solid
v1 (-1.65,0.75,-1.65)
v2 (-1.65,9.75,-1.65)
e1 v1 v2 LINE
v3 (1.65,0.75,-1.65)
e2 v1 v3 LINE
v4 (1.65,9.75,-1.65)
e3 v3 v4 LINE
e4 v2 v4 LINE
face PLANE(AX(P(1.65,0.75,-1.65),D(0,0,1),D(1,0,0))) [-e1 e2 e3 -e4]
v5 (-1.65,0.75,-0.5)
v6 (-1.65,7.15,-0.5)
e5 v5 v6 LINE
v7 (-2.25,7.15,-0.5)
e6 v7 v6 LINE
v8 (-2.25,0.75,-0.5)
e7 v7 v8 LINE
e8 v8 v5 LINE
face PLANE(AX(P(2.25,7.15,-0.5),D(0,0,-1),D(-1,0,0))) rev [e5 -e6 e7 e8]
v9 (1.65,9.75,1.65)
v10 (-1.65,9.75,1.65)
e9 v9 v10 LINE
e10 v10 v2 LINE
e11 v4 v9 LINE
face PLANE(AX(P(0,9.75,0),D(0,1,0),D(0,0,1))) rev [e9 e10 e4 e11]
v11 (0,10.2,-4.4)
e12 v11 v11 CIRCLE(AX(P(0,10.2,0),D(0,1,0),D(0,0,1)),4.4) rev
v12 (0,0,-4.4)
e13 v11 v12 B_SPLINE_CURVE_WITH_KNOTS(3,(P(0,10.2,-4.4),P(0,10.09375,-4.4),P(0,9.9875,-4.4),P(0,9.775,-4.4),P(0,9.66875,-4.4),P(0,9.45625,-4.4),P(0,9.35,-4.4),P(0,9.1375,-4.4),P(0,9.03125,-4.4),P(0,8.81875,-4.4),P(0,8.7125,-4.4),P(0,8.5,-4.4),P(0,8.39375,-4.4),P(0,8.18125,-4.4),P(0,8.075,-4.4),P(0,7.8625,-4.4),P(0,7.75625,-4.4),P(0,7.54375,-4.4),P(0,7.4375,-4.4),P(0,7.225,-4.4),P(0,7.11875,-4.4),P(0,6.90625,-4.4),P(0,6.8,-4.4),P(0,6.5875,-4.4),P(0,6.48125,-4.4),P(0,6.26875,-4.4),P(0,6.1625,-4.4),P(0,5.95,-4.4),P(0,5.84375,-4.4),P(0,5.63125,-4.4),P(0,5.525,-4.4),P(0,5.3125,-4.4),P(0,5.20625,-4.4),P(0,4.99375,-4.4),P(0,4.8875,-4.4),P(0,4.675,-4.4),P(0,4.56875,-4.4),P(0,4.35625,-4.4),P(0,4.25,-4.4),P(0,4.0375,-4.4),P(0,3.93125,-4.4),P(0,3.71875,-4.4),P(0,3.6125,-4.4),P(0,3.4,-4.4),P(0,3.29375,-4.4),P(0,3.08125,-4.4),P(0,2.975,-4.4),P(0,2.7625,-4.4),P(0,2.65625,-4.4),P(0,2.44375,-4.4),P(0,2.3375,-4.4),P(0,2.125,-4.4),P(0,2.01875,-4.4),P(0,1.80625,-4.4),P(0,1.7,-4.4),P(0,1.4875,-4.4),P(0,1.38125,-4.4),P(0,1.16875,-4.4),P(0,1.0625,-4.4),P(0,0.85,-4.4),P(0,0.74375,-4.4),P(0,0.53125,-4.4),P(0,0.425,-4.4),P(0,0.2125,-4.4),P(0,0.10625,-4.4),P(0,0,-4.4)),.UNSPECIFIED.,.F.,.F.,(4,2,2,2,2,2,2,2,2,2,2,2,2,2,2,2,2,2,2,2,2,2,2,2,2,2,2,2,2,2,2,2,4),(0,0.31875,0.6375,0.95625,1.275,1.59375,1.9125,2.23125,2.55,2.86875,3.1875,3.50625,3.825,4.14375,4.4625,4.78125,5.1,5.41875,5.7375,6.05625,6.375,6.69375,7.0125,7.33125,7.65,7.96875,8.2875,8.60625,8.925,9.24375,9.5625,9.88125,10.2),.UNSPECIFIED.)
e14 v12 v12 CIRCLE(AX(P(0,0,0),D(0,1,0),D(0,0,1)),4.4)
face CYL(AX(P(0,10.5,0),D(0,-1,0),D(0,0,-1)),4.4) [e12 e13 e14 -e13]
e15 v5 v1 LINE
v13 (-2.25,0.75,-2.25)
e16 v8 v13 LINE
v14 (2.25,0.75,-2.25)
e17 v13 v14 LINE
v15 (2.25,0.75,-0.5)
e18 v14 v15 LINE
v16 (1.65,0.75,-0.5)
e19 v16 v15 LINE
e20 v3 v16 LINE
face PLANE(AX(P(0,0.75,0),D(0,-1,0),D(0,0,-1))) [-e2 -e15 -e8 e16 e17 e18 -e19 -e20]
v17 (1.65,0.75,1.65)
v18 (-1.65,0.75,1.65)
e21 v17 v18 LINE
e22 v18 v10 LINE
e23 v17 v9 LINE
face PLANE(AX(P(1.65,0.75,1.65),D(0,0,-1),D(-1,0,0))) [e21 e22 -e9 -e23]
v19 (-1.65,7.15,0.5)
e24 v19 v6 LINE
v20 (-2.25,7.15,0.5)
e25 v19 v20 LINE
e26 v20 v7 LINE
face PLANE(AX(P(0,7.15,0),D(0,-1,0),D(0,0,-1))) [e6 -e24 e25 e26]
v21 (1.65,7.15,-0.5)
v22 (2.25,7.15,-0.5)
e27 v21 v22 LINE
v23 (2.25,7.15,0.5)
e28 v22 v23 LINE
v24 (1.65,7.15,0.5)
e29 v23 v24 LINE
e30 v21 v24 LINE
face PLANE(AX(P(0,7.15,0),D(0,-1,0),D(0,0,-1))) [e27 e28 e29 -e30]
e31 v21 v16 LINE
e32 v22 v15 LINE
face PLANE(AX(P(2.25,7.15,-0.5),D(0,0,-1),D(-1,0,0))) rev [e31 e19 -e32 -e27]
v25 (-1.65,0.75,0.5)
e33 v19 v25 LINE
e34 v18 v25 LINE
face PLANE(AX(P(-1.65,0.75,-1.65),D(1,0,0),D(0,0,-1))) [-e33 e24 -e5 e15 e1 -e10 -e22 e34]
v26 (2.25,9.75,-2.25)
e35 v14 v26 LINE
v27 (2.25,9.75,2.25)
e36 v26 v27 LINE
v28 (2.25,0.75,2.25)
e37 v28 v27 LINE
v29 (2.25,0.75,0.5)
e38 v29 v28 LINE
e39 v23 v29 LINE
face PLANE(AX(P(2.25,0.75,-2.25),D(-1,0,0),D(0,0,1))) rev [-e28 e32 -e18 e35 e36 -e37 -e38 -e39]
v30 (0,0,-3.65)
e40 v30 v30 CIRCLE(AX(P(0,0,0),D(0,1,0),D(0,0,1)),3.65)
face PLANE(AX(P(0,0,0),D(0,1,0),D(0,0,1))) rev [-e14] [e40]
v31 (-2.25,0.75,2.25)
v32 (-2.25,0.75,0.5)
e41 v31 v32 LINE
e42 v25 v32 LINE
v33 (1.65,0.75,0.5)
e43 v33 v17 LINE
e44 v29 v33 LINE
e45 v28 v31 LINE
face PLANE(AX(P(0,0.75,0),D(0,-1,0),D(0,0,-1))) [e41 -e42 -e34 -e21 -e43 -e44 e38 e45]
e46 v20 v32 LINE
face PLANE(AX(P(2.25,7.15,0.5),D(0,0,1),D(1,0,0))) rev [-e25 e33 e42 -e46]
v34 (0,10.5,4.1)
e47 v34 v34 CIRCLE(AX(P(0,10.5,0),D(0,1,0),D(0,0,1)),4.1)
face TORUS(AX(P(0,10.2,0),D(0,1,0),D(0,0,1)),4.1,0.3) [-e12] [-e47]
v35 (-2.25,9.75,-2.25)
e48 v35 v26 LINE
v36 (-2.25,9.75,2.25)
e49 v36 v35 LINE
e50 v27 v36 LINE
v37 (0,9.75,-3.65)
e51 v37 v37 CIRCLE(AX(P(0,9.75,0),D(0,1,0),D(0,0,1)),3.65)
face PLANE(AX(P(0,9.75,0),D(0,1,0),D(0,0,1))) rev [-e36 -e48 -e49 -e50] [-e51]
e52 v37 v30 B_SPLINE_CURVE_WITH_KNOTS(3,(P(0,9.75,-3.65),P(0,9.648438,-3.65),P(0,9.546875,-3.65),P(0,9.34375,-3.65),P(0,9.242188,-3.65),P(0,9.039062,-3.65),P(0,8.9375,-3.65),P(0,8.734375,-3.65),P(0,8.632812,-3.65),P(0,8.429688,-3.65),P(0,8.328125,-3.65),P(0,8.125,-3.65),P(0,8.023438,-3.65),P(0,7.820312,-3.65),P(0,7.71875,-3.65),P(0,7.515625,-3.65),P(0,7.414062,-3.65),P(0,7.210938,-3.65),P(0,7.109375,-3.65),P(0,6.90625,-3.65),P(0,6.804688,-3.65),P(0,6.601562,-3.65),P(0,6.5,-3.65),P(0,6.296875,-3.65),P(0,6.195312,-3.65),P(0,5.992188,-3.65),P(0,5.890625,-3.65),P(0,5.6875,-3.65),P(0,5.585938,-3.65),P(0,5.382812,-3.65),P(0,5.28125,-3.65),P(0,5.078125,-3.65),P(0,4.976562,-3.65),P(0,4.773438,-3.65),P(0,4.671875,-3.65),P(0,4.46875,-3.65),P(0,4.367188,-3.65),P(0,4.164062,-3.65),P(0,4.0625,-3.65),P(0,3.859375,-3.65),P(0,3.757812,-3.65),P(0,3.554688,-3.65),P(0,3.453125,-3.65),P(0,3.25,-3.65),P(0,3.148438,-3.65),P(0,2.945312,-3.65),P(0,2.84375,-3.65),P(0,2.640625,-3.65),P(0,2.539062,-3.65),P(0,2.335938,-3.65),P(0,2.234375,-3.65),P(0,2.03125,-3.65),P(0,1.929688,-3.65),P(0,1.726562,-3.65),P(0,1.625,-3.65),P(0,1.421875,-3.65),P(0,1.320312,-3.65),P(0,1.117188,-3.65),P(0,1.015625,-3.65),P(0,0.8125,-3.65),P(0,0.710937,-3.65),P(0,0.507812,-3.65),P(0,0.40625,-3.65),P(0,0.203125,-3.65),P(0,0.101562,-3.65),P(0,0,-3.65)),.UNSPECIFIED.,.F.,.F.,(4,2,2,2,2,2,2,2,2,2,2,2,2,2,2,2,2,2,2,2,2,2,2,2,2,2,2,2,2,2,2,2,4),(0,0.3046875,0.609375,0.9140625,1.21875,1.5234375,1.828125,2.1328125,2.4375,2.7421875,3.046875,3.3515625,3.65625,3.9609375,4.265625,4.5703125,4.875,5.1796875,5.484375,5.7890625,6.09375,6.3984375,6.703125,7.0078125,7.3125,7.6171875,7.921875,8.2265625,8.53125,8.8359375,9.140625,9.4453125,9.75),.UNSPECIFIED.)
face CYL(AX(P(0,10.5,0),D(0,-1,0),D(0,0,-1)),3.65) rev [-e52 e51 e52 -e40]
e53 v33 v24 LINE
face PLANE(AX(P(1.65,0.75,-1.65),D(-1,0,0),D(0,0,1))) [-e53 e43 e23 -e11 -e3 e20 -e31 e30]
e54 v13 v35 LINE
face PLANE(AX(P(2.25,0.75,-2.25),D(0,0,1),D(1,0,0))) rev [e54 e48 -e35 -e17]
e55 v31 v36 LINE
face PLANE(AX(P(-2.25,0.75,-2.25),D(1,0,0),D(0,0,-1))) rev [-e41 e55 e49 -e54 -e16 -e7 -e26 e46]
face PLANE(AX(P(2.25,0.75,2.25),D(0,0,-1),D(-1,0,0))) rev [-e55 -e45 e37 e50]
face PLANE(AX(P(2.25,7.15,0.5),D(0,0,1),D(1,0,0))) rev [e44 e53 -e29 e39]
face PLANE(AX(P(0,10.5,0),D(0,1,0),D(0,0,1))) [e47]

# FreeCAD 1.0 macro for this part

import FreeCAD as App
import Part
import Sketcher
from FreeCAD import Vector


def edges_at(feature, points):
    """Names of the edges that pass closest to the given points."""
    edges = feature.Shape.Edges
    near = lambda p: min(range(len(edges)), key=lambda i: edges[i].distToShape(Part.Vertex(*p))[0])
    return sorted({f"Edge{near(p) + 1}" for p in points})


def faces_at(feature, points):
    """Names of the faces that lie closest to the given points."""
    faces = feature.Shape.Faces
    near = lambda p: min(range(len(faces)), key=lambda i: faces[i].distToShape(Part.Vertex(*p))[0])
    return sorted({f"Face{near(p) + 1}" for p in points})

doc = App.newDocument("Part")
body = doc.addObject("PartDesign::Body", "Body")

sketch1 = body.newObject("Sketcher::SketchObject", "Sketch")
sketch1.AttachmentSupport = (doc.getObject("XZ_Plane"), [""])
sketch1.MapMode = "FlatFace"
sketch1.addGeometry(Part.Circle(Vector(0, 0, 0), Vector(0, 0, 1), 4.4), False)
sketch1.addConstraint([
    Sketcher.Constraint("Coincident", 0, 3, -1, 1),
    Sketcher.Constraint("Diameter", 0, 8.8),
])
pad1 = body.newObject("PartDesign::Pad", "Pad")
pad1.Profile = sketch1
pad1.Length = 10.5
pad1.Reversed = True
doc.recompute()

thickness = body.newObject("PartDesign::Thickness", "Thickness")
thickness.Base = (pad1, faces_at(pad1, [(0, 0, 0)]))
thickness.Value = 0.75
thickness.Reversed = True
thickness.Join = "Intersection"

sketch2 = body.newObject("Sketcher::SketchObject", "Sketch001")
sketch2.AttachmentSupport = (doc.getObject("XZ_Plane"), [""])
sketch2.MapMode = "FlatFace"
sketch2.AttachmentOffset = App.Placement(Vector(0, 0, -9.75), App.Rotation())
sketch2.addGeometry([
    Part.LineSegment(Vector(-2.2, 2.2, 0), Vector(-2.2, -2.2, 0)),
    Part.LineSegment(Vector(-2.2, -2.2, 0), Vector(2.2, -2.2, 0)),
    Part.LineSegment(Vector(2.2, -2.2, 0), Vector(2.2, 2.2, 0)),
    Part.LineSegment(Vector(2.2, 2.2, 0), Vector(-2.2, 2.2, 0)),
    Part.LineSegment(Vector(1.6, -1.6, 0), Vector(-1.6, -1.6, 0)),
    Part.LineSegment(Vector(-1.6, -1.6, 0), Vector(-1.6, 1.6, 0)),
    Part.LineSegment(Vector(-1.6, 1.6, 0), Vector(1.6, 1.6, 0)),
    Part.LineSegment(Vector(1.6, 1.6, 0), Vector(1.6, -1.6, 0)),
], False)
sketch2.addConstraint([
    Sketcher.Constraint("Coincident", 0, 2, 1, 1),
    Sketcher.Constraint("Coincident", 1, 2, 2, 1),
    Sketcher.Constraint("Coincident", 2, 2, 3, 1),
    Sketcher.Constraint("Coincident", 3, 2, 0, 1),
    Sketcher.Constraint("Coincident", 4, 2, 5, 1),
    Sketcher.Constraint("Coincident", 5, 2, 6, 1),
    Sketcher.Constraint("Coincident", 6, 2, 7, 1),
    Sketcher.Constraint("Coincident", 7, 2, 4, 1),
    Sketcher.Constraint("Vertical", 0),
    Sketcher.Constraint("Horizontal", 1),
    Sketcher.Constraint("Vertical", 2),
    Sketcher.Constraint("Horizontal", 3),
    Sketcher.Constraint("Horizontal", 4),
    Sketcher.Constraint("Vertical", 5),
    Sketcher.Constraint("Horizontal", 6),
    Sketcher.Constraint("Vertical", 7),
    Sketcher.Constraint("Symmetric", 0, 2, 2, 2, -1, 1),
    Sketcher.Constraint("Symmetric", 4, 2, 6, 2, -1, 1),
    Sketcher.Constraint("Equal", 3, 0),
    Sketcher.Constraint("Equal", 6, 5),
    Sketcher.Constraint("DistanceX", 1, 1, 1, 2, 4.5),
    Sketcher.Constraint("DistanceX", 4, 2, 4, 1, 3.3),
])
pad2 = body.newObject("PartDesign::Pad", "Pad001")
pad2.Profile = sketch2
pad2.Length = 9

sketch3 = body.newObject("Sketcher::SketchObject", "Sketch002")
sketch3.AttachmentSupport = (doc.getObject("XZ_Plane"), [""])
sketch3.MapMode = "FlatFace"
sketch3.AttachmentOffset = App.Placement(Vector(0, 0, -0.75), App.Rotation())
sketch3.addGeometry([
    Part.LineSegment(Vector(2.2, -0.5, 0), Vector(2.2, 0.5, 0)),
    Part.LineSegment(Vector(2.2, 0.5, 0), Vector(-2.2, 0.5, 0)),
    Part.LineSegment(Vector(-2.2, 0.5, 0), Vector(-2.2, -0.5, 0)),
    Part.LineSegment(Vector(-2.2, -0.5, 0), Vector(2.2, -0.5, 0)),
], False)
sketch3.addConstraint([
    Sketcher.Constraint("Coincident", 0, 2, 1, 1),
    Sketcher.Constraint("Coincident", 1, 2, 2, 1),
    Sketcher.Constraint("Coincident", 2, 2, 3, 1),
    Sketcher.Constraint("Coincident", 3, 2, 0, 1),
    Sketcher.Constraint("Vertical", 0),
    Sketcher.Constraint("Horizontal", 1),
    Sketcher.Constraint("Vertical", 2),
    Sketcher.Constraint("Horizontal", 3),
    Sketcher.Constraint("Symmetric", 0, 2, 2, 2, -1, 1),
    Sketcher.Constraint("DistanceY", 0, 1, 0, 2, 1.0),
    Sketcher.Constraint("DistanceX", 1, 2, 1, 1, 4.5),
])
pocket1 = body.newObject("PartDesign::Pocket", "Pocket")
pocket1.Profile = sketch3
pocket1.Length = 6.4
doc.recompute()

fillet = body.newObject("PartDesign::Fillet", "Fillet")
fillet.Base = (pocket1, edges_at(pocket1, [(0, 10.5, 4.4)]))
fillet.Radius = 0.3

doc.recompute()
